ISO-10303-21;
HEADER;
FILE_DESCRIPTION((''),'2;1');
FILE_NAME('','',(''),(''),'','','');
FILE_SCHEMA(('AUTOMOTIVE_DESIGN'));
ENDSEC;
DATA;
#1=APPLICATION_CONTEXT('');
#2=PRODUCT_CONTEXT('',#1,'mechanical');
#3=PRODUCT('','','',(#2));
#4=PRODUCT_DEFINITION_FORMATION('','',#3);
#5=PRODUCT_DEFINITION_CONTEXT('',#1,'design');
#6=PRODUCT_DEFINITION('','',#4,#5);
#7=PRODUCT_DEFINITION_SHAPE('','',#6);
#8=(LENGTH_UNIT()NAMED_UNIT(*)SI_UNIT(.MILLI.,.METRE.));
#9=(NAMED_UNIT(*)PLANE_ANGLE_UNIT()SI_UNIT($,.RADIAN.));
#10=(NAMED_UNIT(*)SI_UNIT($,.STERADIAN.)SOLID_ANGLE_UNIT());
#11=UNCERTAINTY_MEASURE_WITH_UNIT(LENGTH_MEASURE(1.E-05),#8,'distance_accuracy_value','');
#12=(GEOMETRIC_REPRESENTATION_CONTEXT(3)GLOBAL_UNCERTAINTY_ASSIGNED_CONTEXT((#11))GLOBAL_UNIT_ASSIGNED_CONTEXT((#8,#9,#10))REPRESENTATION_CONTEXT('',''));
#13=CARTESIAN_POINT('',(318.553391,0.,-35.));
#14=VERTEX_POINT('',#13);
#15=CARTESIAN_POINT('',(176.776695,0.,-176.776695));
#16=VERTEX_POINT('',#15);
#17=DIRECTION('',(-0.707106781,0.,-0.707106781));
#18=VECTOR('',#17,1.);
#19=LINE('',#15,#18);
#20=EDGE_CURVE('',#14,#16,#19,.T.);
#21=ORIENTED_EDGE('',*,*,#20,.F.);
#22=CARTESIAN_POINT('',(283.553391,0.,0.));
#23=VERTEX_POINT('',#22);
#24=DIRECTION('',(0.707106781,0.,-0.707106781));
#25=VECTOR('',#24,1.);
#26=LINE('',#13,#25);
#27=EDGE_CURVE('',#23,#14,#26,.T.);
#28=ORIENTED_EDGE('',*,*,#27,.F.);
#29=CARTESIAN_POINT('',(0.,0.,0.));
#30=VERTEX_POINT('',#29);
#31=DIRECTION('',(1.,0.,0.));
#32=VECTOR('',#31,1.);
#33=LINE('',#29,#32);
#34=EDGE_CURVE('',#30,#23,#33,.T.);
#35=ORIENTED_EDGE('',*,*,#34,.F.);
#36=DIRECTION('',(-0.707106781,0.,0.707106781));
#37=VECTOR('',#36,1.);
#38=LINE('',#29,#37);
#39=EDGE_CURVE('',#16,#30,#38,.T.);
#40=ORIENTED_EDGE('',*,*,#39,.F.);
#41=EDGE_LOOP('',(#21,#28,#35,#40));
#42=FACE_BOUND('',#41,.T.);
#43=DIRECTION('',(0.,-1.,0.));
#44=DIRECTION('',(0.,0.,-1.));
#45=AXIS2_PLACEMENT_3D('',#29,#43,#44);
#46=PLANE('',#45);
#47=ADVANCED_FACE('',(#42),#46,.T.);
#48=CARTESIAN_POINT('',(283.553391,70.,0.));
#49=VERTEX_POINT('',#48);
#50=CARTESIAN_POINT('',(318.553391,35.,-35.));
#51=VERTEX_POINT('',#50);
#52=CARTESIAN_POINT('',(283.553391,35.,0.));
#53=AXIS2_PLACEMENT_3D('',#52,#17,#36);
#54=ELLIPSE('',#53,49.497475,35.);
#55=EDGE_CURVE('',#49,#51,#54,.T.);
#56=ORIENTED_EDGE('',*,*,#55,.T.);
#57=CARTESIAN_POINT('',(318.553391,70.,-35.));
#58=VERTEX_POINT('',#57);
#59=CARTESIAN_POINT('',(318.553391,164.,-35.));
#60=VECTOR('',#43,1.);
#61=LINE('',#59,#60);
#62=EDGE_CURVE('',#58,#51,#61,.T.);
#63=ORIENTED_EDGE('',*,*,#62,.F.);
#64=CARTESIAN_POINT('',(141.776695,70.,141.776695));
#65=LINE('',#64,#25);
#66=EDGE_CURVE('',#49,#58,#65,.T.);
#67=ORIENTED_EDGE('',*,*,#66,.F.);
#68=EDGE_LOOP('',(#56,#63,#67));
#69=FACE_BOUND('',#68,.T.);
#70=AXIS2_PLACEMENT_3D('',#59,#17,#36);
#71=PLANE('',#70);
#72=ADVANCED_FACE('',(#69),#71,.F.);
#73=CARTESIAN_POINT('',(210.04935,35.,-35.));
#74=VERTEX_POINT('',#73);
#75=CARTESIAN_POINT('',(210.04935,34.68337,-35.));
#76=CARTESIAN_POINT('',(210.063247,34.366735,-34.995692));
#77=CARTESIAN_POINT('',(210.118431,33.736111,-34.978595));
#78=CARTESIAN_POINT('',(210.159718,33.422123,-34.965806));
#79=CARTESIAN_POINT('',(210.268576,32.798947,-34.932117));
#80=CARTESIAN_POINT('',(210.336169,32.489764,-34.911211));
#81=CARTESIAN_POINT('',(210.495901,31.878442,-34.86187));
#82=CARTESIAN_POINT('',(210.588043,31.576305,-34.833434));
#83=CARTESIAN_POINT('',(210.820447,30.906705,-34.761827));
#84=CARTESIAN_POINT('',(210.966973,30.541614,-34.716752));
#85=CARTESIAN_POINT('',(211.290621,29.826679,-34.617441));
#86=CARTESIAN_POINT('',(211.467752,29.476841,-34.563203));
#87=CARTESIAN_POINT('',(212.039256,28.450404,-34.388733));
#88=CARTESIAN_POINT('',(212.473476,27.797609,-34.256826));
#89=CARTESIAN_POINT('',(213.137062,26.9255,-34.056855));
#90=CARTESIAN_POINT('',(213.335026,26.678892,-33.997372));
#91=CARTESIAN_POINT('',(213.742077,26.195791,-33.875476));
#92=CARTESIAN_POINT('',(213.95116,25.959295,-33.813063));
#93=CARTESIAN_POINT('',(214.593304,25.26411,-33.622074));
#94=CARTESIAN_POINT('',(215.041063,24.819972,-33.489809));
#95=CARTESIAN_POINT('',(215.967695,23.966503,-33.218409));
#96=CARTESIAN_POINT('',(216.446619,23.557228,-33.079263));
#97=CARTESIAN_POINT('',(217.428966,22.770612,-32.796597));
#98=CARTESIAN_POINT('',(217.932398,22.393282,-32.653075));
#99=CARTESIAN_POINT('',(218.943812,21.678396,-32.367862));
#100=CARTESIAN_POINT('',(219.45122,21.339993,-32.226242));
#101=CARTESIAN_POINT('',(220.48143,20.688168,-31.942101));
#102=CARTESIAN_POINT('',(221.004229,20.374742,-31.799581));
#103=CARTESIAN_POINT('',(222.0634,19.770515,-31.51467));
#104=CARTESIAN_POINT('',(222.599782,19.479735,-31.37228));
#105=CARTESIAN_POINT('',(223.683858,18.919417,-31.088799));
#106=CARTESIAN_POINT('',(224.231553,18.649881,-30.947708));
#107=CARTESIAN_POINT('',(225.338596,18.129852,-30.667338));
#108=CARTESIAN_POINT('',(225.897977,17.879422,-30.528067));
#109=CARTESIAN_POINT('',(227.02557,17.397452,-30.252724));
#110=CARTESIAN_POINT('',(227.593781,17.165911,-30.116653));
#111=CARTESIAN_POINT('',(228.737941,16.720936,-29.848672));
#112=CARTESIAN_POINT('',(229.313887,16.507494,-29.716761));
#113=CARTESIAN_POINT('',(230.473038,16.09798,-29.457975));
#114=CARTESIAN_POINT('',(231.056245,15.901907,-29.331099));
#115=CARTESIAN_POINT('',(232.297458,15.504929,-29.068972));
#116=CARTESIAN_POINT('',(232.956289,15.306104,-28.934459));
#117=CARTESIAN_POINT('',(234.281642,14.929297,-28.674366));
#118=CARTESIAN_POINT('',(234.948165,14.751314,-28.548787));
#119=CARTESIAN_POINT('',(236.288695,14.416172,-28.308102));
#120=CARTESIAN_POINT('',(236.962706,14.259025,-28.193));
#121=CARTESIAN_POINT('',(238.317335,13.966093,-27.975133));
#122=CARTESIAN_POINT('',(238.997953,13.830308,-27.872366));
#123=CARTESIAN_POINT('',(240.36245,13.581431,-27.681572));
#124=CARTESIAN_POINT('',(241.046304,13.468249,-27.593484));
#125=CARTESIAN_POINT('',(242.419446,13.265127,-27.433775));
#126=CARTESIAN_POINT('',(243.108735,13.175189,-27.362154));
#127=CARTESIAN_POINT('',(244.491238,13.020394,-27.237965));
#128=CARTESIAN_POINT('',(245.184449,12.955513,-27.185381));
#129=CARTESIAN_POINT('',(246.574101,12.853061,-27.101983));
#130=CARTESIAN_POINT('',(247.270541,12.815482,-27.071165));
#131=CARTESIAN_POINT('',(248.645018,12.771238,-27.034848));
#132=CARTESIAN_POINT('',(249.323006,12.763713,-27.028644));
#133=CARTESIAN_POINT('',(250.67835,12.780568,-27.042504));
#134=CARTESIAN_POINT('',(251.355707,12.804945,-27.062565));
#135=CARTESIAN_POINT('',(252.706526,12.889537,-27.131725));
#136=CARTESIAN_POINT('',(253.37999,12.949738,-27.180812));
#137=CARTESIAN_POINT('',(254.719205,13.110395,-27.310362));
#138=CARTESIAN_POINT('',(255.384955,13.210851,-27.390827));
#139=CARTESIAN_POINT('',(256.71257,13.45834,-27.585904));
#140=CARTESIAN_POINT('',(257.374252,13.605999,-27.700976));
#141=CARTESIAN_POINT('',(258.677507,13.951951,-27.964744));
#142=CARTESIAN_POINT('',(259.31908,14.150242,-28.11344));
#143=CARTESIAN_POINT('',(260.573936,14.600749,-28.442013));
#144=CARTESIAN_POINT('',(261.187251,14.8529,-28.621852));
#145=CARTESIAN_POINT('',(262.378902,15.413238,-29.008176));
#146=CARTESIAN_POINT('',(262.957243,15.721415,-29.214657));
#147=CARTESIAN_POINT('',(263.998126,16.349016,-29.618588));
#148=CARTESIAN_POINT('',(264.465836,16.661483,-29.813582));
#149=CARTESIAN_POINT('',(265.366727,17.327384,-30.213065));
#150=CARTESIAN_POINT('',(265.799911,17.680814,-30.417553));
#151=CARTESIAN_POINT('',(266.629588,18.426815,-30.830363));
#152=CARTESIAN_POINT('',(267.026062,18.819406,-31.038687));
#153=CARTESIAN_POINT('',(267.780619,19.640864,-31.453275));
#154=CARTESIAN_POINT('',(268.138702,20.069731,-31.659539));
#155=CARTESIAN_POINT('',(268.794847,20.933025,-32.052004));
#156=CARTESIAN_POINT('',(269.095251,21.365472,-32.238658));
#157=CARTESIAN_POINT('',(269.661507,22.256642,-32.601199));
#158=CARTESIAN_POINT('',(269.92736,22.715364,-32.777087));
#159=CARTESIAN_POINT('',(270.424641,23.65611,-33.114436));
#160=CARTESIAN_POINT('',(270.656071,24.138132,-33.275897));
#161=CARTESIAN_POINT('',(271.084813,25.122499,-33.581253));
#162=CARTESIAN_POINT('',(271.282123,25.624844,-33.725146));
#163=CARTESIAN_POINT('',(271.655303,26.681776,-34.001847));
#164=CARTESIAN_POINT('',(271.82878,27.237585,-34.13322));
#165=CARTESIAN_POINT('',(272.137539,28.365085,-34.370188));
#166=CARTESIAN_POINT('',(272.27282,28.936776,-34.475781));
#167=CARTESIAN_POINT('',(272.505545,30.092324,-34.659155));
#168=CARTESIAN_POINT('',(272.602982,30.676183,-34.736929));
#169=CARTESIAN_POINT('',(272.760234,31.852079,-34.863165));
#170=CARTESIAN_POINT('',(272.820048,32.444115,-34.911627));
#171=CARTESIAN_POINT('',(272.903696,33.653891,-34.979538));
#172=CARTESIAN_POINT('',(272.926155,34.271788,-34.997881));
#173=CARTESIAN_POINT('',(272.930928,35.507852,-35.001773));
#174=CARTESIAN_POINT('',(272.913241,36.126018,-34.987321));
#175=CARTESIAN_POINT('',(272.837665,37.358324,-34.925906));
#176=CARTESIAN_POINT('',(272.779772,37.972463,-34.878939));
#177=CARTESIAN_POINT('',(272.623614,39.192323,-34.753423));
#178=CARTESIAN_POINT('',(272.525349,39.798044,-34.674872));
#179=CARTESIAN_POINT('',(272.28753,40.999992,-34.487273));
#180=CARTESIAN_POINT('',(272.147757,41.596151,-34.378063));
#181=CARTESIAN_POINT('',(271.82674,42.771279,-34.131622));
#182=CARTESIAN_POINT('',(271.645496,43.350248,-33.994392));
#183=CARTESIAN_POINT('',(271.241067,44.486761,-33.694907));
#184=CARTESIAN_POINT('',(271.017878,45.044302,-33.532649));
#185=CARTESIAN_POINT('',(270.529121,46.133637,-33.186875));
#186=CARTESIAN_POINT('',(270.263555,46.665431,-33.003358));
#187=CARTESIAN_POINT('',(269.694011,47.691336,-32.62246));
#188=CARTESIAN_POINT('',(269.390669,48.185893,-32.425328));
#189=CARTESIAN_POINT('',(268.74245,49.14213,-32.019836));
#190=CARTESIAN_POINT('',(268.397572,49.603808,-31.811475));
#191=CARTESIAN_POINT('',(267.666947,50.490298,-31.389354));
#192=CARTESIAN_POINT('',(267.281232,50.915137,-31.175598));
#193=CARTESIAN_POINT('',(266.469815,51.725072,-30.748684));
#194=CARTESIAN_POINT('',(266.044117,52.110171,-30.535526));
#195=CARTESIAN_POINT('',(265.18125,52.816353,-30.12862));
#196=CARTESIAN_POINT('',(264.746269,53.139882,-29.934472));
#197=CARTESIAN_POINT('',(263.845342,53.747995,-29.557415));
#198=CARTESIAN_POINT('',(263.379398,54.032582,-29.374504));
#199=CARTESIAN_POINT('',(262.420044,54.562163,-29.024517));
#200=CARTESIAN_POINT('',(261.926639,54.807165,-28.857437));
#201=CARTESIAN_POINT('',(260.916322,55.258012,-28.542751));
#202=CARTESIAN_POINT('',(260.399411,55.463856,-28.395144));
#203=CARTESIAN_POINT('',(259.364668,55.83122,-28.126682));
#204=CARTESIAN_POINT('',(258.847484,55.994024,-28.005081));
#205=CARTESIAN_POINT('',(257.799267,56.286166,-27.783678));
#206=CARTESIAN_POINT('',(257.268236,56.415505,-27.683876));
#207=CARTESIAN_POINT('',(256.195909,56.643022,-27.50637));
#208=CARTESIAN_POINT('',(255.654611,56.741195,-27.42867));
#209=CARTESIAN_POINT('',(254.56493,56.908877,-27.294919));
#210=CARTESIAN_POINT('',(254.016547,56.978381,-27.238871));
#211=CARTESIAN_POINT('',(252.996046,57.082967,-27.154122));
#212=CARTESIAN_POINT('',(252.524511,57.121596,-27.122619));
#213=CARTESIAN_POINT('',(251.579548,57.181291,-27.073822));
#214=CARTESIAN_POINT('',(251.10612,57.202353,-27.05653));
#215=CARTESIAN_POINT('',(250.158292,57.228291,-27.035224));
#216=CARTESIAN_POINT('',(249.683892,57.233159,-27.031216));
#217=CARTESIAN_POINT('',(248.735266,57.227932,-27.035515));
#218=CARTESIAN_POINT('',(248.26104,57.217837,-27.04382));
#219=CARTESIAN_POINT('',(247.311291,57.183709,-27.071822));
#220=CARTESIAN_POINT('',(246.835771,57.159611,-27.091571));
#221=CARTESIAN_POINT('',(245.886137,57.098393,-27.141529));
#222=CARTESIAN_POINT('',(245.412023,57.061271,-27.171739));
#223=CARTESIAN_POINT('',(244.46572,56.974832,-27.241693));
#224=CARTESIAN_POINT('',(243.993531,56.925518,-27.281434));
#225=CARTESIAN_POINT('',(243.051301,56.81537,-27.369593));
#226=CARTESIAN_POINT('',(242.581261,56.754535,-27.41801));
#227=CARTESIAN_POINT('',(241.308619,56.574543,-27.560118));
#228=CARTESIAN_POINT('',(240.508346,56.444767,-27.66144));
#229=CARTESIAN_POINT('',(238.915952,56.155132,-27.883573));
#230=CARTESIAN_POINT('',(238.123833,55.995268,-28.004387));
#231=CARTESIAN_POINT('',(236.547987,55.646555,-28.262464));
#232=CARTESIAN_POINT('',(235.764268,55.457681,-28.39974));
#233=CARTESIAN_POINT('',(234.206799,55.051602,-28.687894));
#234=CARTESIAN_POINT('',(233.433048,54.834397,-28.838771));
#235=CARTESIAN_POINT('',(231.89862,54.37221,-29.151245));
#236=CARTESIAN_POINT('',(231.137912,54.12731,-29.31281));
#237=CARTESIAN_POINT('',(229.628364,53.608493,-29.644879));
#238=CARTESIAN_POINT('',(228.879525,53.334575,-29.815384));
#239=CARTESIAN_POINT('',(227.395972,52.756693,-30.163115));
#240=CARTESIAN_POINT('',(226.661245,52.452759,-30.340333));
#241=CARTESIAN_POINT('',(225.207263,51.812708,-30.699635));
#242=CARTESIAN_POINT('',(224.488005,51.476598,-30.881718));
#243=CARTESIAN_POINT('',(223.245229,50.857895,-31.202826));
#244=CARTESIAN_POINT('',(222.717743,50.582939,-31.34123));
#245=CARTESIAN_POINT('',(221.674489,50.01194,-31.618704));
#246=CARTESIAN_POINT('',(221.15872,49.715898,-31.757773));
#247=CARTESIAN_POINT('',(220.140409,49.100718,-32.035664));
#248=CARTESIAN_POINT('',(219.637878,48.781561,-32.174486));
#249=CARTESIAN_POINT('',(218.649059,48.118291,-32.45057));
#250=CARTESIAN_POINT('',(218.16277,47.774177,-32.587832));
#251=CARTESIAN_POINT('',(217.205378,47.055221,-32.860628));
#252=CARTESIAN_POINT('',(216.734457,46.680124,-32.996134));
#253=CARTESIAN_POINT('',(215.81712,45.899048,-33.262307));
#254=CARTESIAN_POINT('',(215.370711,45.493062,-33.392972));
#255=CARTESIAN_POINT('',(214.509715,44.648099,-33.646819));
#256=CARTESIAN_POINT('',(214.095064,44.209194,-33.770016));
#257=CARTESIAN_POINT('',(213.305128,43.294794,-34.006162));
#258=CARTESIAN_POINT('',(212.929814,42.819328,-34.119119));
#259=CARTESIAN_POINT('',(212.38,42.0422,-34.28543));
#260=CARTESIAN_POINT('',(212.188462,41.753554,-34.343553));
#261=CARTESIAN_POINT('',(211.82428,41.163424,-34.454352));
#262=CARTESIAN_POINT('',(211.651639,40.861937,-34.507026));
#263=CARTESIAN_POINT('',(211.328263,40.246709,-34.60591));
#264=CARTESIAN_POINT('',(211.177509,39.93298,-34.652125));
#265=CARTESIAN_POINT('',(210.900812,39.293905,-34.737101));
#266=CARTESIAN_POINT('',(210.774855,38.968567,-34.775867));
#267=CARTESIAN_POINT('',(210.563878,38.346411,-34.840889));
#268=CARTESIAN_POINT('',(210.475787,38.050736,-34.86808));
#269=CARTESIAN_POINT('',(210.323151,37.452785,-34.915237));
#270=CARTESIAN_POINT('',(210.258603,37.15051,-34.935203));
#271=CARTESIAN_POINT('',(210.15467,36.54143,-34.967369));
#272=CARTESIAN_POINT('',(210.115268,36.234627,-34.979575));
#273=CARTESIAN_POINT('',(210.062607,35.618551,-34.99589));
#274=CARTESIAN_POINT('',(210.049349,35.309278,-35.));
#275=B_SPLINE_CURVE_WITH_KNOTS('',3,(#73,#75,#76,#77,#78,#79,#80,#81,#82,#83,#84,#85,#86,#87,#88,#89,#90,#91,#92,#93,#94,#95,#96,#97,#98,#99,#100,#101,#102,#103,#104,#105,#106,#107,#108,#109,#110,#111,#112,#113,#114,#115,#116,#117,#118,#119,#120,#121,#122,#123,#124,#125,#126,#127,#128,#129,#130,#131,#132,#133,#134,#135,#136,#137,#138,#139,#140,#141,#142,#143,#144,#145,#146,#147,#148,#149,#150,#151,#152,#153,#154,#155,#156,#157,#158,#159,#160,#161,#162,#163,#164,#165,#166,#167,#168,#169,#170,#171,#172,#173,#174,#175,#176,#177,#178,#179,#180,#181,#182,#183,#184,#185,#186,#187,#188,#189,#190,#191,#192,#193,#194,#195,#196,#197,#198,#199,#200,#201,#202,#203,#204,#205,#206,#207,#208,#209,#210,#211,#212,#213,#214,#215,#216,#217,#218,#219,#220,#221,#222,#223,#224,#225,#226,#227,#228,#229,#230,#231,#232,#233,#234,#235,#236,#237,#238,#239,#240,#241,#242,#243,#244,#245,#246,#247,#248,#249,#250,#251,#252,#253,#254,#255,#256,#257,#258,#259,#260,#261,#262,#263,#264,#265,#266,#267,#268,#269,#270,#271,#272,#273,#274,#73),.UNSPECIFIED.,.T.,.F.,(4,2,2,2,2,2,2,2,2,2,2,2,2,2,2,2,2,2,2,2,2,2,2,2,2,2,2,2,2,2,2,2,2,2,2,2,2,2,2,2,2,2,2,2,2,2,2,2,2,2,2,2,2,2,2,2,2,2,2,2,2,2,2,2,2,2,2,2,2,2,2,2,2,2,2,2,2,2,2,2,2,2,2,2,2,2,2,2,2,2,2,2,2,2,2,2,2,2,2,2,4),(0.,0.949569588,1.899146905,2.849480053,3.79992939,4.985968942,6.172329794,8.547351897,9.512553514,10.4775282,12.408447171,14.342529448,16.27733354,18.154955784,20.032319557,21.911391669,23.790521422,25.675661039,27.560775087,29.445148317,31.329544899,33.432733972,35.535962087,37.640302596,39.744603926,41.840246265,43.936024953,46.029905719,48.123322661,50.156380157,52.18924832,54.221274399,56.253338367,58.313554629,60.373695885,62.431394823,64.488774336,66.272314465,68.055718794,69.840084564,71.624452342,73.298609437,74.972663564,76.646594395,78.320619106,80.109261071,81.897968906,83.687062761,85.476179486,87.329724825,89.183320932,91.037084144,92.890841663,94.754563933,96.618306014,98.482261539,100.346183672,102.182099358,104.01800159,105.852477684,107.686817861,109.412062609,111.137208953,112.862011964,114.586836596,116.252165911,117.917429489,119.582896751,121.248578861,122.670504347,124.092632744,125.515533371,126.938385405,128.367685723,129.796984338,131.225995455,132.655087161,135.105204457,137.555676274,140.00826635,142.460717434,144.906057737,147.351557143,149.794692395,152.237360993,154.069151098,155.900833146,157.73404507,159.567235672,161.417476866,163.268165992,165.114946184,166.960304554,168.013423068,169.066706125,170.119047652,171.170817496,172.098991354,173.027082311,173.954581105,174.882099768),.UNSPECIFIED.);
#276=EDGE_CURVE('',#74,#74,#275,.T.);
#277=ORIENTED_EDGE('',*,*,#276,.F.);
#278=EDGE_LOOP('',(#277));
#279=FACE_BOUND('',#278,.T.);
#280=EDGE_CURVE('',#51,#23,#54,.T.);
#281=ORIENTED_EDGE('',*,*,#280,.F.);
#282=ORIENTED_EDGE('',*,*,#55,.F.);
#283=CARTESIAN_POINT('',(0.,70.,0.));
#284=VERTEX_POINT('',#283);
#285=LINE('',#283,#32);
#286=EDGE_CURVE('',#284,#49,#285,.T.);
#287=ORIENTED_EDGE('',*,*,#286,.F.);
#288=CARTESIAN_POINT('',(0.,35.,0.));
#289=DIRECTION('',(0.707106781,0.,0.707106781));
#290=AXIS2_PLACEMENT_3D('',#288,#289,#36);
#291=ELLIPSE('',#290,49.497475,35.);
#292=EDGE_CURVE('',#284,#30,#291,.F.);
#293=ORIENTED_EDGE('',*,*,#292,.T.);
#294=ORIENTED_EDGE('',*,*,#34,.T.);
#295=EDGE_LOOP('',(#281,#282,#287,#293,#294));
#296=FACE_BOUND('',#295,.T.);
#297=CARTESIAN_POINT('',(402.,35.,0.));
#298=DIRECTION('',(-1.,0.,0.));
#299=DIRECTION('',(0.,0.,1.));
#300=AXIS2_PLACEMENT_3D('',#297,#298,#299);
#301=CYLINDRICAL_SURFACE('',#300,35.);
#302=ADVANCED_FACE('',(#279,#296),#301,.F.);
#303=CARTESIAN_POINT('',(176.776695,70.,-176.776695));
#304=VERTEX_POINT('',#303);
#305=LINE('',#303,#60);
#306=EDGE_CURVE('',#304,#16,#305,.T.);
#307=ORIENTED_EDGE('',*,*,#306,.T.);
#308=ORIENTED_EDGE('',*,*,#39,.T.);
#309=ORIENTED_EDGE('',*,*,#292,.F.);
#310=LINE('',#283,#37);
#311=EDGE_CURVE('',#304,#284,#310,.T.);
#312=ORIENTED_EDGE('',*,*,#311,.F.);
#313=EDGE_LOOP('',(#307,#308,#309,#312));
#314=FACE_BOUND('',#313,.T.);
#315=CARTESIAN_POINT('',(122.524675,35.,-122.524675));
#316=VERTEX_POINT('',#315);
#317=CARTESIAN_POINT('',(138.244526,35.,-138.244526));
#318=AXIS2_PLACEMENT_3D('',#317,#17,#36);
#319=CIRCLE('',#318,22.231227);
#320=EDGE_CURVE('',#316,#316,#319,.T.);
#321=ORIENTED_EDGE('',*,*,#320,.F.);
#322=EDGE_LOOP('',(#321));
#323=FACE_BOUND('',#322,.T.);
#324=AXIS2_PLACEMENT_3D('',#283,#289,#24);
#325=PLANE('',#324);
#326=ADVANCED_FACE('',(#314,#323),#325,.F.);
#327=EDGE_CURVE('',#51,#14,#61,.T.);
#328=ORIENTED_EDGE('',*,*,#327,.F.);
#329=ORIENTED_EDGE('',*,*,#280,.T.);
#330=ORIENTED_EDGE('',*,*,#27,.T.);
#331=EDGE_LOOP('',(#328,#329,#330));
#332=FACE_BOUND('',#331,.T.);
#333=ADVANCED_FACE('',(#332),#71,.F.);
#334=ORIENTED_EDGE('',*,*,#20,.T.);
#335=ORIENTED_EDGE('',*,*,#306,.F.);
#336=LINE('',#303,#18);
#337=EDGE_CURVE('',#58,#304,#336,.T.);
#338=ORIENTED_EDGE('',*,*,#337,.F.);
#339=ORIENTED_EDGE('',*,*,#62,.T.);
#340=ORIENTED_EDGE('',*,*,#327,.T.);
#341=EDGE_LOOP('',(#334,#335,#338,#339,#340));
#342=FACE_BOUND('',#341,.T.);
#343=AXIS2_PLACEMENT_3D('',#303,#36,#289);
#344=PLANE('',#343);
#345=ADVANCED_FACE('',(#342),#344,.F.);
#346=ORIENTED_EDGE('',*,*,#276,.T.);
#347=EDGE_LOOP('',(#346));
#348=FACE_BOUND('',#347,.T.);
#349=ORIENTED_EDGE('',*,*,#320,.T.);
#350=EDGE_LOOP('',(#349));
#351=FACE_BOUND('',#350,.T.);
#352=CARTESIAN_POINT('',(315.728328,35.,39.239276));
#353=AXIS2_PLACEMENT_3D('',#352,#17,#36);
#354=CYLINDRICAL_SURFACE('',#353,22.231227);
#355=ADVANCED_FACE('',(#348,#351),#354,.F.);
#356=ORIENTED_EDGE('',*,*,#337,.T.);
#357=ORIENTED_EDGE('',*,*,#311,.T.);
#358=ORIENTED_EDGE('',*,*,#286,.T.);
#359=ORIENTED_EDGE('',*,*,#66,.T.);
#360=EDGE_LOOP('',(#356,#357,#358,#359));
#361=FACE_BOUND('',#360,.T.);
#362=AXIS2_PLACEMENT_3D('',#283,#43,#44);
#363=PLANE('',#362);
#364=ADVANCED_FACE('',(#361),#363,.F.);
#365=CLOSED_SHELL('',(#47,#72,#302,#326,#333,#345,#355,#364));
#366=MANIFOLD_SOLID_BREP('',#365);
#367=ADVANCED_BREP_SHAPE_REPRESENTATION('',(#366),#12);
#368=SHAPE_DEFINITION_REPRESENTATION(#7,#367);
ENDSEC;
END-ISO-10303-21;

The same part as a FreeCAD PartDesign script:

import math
import FreeCAD as App
import Part
import Sketcher

V = App.Vector

doc = App.newDocument("Part")
body = doc.addObject("PartDesign::Body", "Body")

# Sketch on XZ plane
sketch1 = body.newObject("Sketcher::SketchObject", "Sketch")
sketch1.AttachmentSupport = (doc.getObject("XZ_Plane"), [""])
sketch1.MapMode = "FlatFace"
sketch1.addGeometry(Part.LineSegment(V(0, 0, 0), V(353.553391, 0, 0)), False)
sketch1.addGeometry(Part.LineSegment(V(353.553391, 0, 0), V(176.776695, -176.776695, 0)), False)
sketch1.addGeometry(Part.LineSegment(V(176.776695, -176.776695, 0), V(0, 0, 0)), False)
sketch1.addConstraint(Sketcher.Constraint("Coincident", 0, 2, 1, 1))
sketch1.addConstraint(Sketcher.Constraint("Coincident", 1, 2, 2, 1))
sketch1.addConstraint(Sketcher.Constraint("Coincident", 2, 2, 0, 1))
sketch1.addConstraint(Sketcher.Constraint("Horizontal", 0))
sketch1.addConstraint(Sketcher.Constraint("Coincident", 2, 2, -1, 1))
sketch1.addConstraint(Sketcher.Constraint("Perpendicular", 1, 2))
sketch1.addConstraint(Sketcher.Constraint("Equal", 1, 2))
sketch1.addConstraint(Sketcher.Constraint("Distance", 1, 250.0))
pad1 = body.newObject("PartDesign::Pad", "Pad")
pad1.Profile = sketch1
pad1.Length = 70
pad1.Reversed = True

# Sketch on YZ plane
sketch2 = body.newObject("Sketcher::SketchObject", "Sketch001")
sketch2.AttachmentSupport = (doc.getObject("YZ_Plane"), [""])
sketch2.MapMode = "FlatFace"
sketch2.addGeometry(Part.LineSegment(V(70, 0, 0), V(0, 0, 0)), False)
sketch2.addGeometry(Part.ArcOfCircle(Part.Circle(V(35, 0, 0), V(0, 0, 1), 35), math.radians(180), math.radians(360)), False)
sketch2.addConstraint(Sketcher.Constraint("Coincident", 0, 1, 1, 2))
sketch2.addConstraint(Sketcher.Constraint("Coincident", 1, 1, 0, 2))
sketch2.addConstraint(Sketcher.Constraint("Horizontal", 0))
sketch2.addConstraint(Sketcher.Constraint("Coincident", 1, 1, -1, 1))
sketch2.addConstraint(Sketcher.Constraint("PointOnObject", 1, 3, -1))
sketch2.addConstraint(Sketcher.Constraint("Radius", 1, 35.0))
pocket1 = body.newObject("PartDesign::Pocket", "Pocket")
pocket1.Profile = sketch2
pocket1.Length = 402
pocket1.Reversed = True

# Sketch on XZ plane
sketch3 = body.newObject("Sketcher::SketchObject", "Sketch002")
sketch3.AttachmentSupport = (doc.getObject("XZ_Plane"), [""])
sketch3.MapMode = "FlatFace"
sketch3.addGeometry(Part.LineSegment(V(283.553391, 0, 0), V(318.553391, -35, 0)), False)
sketch3.addGeometry(Part.LineSegment(V(318.553391, -35, 0), V(353.553391, 0, 0)), False)
sketch3.addGeometry(Part.LineSegment(V(353.553391, 0, 0), V(283.553391, 0, 0)), False)
sketch3.addConstraint(Sketcher.Constraint("Coincident", 0, 2, 1, 1))
sketch3.addConstraint(Sketcher.Constraint("Coincident", 1, 2, 2, 1))
sketch3.addConstraint(Sketcher.Constraint("Coincident", 2, 2, 0, 1))
sketch3.addConstraint(Sketcher.Constraint("Horizontal", 2))
sketch3.addConstraint(Sketcher.Constraint("PointOnObject", 1, 2, -1))
sketch3.addConstraint(Sketcher.Constraint("Perpendicular", 0, 1))
sketch3.addConstraint(Sketcher.Constraint("Equal", 0, 1))
sketch3.addConstraint(Sketcher.Constraint("DistanceX", 2, 2, 2, 1, 70.0))
sketch3.addConstraint(Sketcher.Constraint("DistanceX", -1, 1, 0, 2, 318.553391))
pocket2 = body.newObject("PartDesign::Pocket", "Pocket001")
pocket2.Profile = sketch3
pocket2.Length = 164

# Sketch on an angled plane
sketch4 = body.newObject("Sketcher::SketchObject", "Sketch003")
sketch4.Placement = App.Placement(V(0, 0, 0), App.Rotation(V(-0.707106781, 0, 0.707106781), V(0, 0.999999999, 0), V(-0.707106781, 0, -0.707106781), "ZXY"))
sketch4.addGeometry(Part.Circle(V(-195.507283, 35, 0), V(0, 0, 1), 22.231227), False)
sketch4.addConstraint(Sketcher.Constraint("DistanceY", -1, 1, 0, 3, 35.0))
sketch4.addConstraint(Sketcher.Constraint("Diameter", 0, 44.462453))
sketch4.addConstraint(Sketcher.Constraint("DistanceX", 0, 3, -1, 1, 195.507283))
pocket3 = body.newObject("PartDesign::Pocket", "Pocket002")
pocket3.Profile = sketch4
pocket3.Length = 251

doc.recompute()
